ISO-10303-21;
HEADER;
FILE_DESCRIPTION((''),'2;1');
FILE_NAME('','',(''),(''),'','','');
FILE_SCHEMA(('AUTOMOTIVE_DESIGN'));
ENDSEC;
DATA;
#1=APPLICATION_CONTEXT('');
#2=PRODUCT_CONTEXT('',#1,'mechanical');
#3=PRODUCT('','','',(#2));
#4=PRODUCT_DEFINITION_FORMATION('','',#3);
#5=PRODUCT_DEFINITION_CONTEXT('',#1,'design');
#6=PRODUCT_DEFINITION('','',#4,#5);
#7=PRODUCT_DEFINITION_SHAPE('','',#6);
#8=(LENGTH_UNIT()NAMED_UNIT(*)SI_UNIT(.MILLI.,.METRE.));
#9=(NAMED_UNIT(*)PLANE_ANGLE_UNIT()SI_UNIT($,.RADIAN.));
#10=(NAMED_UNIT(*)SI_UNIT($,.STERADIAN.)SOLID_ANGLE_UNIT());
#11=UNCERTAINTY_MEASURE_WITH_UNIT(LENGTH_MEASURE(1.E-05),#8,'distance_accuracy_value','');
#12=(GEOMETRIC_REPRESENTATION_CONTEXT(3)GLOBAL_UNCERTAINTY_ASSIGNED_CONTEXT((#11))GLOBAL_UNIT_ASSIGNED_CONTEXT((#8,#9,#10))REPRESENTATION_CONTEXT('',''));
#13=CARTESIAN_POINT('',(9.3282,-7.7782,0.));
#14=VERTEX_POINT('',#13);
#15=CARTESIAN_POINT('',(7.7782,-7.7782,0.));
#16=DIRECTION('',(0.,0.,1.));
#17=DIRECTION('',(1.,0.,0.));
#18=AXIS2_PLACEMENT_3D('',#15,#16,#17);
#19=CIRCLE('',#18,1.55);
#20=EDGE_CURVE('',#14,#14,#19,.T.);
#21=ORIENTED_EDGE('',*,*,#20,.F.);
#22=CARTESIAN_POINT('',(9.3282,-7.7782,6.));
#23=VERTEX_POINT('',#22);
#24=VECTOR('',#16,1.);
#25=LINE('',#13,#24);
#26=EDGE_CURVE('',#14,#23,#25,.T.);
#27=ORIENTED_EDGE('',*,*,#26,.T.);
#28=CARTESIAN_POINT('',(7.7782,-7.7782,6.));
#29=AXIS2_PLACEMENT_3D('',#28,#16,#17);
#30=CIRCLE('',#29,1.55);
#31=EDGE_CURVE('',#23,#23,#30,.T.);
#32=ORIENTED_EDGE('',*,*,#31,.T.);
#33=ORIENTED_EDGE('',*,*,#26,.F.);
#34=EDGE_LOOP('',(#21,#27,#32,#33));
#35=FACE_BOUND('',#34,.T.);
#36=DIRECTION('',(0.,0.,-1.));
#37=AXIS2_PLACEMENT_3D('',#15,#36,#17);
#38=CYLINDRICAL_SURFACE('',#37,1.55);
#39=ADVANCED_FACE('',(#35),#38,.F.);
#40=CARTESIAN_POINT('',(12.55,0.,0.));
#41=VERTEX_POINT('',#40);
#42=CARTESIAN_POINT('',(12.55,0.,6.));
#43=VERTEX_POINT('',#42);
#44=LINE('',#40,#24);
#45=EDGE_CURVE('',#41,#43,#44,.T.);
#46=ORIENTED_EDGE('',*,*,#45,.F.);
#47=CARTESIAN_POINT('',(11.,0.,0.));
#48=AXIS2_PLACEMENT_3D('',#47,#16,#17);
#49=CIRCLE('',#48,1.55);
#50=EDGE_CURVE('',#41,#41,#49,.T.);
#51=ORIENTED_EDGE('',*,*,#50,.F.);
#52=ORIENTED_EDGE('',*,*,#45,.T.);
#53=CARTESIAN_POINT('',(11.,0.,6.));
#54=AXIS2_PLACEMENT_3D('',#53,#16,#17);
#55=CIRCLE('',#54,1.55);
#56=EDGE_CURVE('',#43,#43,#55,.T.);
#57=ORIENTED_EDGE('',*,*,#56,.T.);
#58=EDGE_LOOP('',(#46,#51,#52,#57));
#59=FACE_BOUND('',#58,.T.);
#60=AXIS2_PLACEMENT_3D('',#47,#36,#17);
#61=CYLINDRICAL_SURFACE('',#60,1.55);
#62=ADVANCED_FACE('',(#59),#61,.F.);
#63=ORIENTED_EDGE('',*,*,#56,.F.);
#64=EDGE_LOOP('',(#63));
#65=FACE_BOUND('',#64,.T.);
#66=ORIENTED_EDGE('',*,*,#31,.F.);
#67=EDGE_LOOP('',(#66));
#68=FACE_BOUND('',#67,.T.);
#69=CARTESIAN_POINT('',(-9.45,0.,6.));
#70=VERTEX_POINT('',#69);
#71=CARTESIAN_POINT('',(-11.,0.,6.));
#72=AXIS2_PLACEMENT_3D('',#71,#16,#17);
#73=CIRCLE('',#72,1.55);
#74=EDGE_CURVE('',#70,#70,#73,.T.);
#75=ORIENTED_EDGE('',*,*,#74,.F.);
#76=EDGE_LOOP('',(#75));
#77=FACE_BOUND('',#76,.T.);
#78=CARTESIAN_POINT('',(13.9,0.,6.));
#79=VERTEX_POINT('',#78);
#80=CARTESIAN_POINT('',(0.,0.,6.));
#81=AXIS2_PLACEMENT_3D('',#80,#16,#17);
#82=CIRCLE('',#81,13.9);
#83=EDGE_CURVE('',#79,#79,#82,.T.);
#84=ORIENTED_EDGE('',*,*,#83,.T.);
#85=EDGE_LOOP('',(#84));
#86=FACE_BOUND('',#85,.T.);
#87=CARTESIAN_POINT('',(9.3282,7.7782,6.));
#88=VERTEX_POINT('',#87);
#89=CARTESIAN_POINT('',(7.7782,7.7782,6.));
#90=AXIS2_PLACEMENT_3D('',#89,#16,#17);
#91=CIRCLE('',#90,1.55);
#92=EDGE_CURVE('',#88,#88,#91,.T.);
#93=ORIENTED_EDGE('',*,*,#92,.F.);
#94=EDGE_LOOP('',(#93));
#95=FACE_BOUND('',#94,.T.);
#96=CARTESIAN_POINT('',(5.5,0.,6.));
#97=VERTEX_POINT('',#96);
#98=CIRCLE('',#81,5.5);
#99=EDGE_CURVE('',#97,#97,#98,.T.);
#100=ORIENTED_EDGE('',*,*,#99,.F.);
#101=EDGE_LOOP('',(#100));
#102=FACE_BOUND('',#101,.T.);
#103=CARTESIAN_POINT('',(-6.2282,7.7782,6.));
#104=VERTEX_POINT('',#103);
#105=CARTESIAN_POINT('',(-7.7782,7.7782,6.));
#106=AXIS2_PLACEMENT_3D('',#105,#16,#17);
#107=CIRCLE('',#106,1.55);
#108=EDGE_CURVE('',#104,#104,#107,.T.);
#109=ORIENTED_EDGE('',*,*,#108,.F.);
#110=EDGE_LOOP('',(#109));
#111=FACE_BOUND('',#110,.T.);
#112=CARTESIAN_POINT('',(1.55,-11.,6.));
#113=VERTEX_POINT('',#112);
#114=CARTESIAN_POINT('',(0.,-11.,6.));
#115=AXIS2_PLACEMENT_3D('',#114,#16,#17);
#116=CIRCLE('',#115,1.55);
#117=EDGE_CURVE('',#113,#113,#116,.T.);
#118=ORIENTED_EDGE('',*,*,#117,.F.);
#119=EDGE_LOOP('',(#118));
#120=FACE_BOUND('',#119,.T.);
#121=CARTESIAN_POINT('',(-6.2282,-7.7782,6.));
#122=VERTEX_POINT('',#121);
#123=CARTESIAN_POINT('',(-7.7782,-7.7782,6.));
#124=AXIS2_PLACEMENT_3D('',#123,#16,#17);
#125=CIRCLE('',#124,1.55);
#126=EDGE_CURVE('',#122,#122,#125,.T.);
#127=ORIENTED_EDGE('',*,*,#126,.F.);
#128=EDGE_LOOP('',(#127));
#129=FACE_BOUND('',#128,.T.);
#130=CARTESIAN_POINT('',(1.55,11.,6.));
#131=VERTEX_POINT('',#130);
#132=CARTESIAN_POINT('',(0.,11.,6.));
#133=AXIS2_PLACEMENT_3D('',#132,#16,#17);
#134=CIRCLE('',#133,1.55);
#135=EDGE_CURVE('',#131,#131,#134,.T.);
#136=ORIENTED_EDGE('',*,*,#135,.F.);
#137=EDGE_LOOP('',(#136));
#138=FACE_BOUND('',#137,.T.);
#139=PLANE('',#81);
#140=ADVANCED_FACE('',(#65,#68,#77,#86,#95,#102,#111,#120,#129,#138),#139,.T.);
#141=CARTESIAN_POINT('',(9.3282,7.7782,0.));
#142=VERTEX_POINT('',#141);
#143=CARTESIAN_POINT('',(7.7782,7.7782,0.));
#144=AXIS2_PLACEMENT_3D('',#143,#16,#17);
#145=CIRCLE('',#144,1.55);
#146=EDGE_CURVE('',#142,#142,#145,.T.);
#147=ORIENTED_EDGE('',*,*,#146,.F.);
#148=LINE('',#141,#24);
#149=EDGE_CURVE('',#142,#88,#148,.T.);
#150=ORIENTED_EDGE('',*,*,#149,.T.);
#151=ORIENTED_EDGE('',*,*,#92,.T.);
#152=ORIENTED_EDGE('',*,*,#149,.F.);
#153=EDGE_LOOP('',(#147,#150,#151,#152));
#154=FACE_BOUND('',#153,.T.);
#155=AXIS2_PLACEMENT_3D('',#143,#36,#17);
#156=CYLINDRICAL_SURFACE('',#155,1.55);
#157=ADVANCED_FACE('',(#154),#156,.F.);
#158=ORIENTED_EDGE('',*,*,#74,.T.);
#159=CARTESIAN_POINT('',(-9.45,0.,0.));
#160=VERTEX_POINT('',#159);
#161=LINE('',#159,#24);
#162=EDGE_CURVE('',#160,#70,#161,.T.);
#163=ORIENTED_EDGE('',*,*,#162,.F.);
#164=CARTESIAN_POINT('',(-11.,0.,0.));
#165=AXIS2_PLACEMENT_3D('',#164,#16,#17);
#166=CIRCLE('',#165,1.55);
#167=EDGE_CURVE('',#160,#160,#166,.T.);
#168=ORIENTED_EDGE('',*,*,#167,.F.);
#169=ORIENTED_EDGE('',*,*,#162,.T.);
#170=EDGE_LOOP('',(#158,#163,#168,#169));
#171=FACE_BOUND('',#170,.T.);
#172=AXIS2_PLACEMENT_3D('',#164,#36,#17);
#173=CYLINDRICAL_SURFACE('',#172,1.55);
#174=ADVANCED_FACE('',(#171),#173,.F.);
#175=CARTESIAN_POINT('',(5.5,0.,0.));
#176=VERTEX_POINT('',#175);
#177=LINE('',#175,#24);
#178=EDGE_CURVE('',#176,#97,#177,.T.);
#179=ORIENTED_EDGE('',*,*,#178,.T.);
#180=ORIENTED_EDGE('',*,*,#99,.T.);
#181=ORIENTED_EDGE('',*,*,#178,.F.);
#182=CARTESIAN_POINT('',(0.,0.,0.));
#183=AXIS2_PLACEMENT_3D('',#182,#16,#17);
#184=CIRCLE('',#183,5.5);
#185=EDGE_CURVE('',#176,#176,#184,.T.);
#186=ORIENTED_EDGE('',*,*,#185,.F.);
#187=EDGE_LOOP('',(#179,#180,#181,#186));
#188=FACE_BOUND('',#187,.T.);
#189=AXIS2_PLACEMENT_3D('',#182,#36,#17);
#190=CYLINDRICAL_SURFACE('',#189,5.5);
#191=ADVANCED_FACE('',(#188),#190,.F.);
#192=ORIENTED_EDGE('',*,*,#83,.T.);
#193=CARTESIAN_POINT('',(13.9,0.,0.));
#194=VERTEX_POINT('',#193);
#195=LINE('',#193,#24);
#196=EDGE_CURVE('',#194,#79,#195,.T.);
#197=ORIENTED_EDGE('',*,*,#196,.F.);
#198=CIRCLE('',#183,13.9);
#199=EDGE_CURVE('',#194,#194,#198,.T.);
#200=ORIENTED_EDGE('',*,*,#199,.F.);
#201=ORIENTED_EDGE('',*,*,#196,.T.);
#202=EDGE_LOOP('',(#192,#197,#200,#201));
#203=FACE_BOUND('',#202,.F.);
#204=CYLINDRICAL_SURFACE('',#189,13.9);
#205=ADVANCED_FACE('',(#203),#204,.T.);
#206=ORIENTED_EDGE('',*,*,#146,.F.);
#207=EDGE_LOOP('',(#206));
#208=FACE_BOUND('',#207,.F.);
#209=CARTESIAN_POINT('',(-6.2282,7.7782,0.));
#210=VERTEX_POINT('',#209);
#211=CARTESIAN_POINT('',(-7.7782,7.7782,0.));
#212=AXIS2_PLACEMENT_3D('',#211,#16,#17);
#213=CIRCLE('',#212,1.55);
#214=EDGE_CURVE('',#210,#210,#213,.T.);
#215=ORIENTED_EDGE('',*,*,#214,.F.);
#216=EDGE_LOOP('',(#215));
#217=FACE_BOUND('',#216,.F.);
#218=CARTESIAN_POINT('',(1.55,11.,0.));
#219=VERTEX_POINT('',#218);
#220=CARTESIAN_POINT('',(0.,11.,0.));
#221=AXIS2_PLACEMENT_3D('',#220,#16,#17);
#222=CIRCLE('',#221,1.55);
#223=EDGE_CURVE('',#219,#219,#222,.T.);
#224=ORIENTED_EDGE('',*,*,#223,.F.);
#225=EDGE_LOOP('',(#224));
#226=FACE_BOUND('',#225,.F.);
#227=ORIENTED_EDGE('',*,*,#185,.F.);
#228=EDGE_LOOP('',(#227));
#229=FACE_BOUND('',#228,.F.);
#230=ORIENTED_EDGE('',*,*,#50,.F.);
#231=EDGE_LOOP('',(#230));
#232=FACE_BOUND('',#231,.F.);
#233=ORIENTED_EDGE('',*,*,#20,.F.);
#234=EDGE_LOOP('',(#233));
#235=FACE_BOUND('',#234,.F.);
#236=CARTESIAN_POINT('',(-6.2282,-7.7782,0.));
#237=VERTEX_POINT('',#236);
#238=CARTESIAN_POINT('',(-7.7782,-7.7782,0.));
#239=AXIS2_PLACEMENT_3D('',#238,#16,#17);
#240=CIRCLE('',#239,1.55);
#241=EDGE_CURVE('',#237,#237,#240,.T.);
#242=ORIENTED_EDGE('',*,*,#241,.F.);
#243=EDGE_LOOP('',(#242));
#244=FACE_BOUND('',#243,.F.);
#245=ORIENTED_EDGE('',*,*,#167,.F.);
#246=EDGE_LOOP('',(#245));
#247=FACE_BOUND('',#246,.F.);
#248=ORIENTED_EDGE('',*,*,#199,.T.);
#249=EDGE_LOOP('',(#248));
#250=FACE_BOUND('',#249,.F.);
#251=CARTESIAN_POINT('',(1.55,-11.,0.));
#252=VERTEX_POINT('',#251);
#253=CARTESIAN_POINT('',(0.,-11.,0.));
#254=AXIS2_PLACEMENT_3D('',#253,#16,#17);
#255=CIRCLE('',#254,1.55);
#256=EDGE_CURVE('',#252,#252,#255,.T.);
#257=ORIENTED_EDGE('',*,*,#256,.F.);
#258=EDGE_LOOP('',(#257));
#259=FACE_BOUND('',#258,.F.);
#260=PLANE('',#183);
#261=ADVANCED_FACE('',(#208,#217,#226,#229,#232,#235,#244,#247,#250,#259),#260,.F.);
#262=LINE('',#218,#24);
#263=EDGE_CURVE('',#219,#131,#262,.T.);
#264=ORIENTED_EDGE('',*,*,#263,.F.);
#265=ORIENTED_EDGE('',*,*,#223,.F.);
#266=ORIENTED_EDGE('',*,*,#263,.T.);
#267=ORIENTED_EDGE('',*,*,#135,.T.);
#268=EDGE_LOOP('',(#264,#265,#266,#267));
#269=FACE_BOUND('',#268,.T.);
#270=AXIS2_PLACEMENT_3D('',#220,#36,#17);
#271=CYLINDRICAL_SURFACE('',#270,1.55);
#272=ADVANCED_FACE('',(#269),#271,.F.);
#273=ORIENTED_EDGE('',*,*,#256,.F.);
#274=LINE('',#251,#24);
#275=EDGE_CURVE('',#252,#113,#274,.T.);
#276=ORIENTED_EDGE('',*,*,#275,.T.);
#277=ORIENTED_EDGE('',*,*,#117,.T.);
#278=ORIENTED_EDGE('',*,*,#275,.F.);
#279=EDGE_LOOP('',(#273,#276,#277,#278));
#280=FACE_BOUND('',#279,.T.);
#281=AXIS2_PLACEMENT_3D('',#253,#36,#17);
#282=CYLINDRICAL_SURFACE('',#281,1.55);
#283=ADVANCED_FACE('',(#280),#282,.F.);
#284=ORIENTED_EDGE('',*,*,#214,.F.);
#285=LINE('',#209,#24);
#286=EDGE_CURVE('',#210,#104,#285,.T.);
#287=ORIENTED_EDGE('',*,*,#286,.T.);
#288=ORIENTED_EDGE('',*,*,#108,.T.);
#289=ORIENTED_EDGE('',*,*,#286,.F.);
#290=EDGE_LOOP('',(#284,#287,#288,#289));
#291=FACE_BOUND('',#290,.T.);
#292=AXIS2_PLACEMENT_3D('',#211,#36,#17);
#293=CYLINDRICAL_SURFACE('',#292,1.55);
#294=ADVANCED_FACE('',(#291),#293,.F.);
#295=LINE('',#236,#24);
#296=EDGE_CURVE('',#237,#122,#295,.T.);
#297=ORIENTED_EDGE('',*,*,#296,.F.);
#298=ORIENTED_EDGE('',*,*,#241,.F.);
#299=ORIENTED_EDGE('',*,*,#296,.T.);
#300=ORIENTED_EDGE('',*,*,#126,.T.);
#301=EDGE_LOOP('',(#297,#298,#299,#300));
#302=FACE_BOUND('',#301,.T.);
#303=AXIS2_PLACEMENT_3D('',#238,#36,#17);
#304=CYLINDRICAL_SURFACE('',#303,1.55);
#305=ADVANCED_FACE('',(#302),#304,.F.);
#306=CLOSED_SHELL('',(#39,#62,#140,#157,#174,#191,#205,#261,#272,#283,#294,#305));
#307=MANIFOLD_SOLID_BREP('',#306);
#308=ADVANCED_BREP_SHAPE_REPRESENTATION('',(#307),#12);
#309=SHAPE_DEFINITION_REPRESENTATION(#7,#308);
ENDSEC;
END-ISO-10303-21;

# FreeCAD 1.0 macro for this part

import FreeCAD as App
import Part
import Sketcher

V = App.Vector

doc = App.newDocument("Part")
params = doc.addObject("Spreadsheet::Sheet", "Params")
for row, (alias, value) in enumerate([
    ("sketch1_diameter", "11 mm"),
    ("sketch1_diameter2", "27.8 mm"),
    ("sketch1_diameter3", "3.1 mm"),
    ("pad1_length", "6 mm"),
], start=1):
    params.set(f"A{row}", alias)
    params.set(f"B{row}", "=" + value)
    params.setAlias(f"B{row}", alias)

body = doc.addObject("PartDesign::Body", "Body")

# Sketch on XY plane
sketch1 = body.newObject("Sketcher::SketchObject", "Sketch")
sketch1.AttachmentSupport = (doc.getObject("XY_Plane"), [""])
sketch1.MapMode = "FlatFace"
sketch1.addGeometry([
    Part.Circle(V(0, 0, 0), V(0, 0, 1), 13.9),  # 0
    Part.Circle(V(-7.8, -7.8, 0), V(0, 0, 1), 1.6),  # 1
    Part.Circle(V(0, -11, 0), V(0, 0, 1), 1.6),  # 2
    Part.Circle(V(7.8, -7.8, 0), V(0, 0, 1), 1.6),  # 3
    Part.Circle(V(-11, 0, 0), V(0, 0, 1), 1.6),  # 4
    Part.Circle(V(-7.8, 7.8, 0), V(0, 0, 1), 1.6),  # 5
    Part.Circle(V(0, 0, 0), V(0, 0, 1), 5.5),  # 6
    Part.Circle(V(11, 0, 0), V(0, 0, 1), 1.6),  # 7
    Part.Circle(V(0, 11, 0), V(0, 0, 1), 1.6),  # 8
    Part.Circle(V(7.8, 7.8, 0), V(0, 0, 1), 1.6),  # 9
], False)
sketch1.addConstraint([
    Sketcher.Constraint("Coincident", 0, 3, -1, 1),
    Sketcher.Constraint("Coincident", 6, 3, -1, 1),
    Sketcher.Constraint("Equal", 1, 2),
    Sketcher.Constraint("Equal", 2, 3),
    Sketcher.Constraint("Equal", 3, 4),
    Sketcher.Constraint("Equal", 4, 5),
    Sketcher.Constraint("Equal", 5, 7),
    Sketcher.Constraint("Equal", 7, 8),
    Sketcher.Constraint("Equal", 8, 9),
    Sketcher.Constraint("Symmetric", 3, 3, 5, 3, -1, 1),
    Sketcher.Constraint("Symmetric", 4, 3, 7, 3, -1, 1),
    Sketcher.Constraint("Symmetric", 2, 3, 8, 3, -1, 1),
    Sketcher.Constraint("Symmetric", 1, 3, 9, 3, -1, 1),
    Sketcher.Constraint("Symmetric", 1, 3, 3, 3, -2),
    Sketcher.Constraint("PointOnObject", 2, 3, -2),
    Sketcher.Constraint("PointOnObject", 4, 3, -1),
    Sketcher.Constraint("Diameter", 6, 11.0),
    Sketcher.Constraint("Diameter", 0, 27.8),
    Sketcher.Constraint("Diameter", 1, 3.1),
    Sketcher.Constraint("DistanceY", 2, 3, -1, 1, 11.0),
    Sketcher.Constraint("DistanceX", 4, 3, -1, 1, 11.0),
    Sketcher.Constraint("DistanceX", 1, 3, -1, 1, 7.7782),
    Sketcher.Constraint("DistanceY", 1, 3, -1, 1, 7.7782),
])
sketch1.setExpression("Constraints[16]", "Params.sketch1_diameter")
sketch1.setExpression("Constraints[17]", "Params.sketch1_diameter2")
sketch1.setExpression("Constraints[18]", "Params.sketch1_diameter3")
pad1 = body.newObject("PartDesign::Pad", "Pad")
pad1.Profile = sketch1
pad1.setExpression("Length", "Params.pad1_length")

doc.recompute()
